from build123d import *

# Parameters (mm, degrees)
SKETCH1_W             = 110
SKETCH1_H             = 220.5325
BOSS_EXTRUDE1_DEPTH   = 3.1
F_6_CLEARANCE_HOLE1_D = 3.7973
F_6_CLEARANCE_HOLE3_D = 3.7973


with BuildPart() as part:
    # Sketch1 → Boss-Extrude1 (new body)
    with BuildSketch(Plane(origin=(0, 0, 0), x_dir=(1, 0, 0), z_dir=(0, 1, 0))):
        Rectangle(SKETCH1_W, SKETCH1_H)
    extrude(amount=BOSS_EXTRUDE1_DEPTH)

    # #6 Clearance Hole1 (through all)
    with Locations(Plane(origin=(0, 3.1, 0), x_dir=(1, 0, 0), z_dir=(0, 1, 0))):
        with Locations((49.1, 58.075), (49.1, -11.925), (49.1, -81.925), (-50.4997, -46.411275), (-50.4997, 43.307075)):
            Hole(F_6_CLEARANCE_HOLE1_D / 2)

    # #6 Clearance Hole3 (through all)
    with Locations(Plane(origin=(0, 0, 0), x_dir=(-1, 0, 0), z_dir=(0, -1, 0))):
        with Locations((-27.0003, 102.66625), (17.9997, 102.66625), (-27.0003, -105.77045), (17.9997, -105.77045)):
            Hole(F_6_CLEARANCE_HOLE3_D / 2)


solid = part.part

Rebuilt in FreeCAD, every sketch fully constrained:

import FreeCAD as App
import Part
import Sketcher

V = App.Vector

doc = App.newDocument("Part")
body = doc.addObject("PartDesign::Body", "Body")

sketch1 = body.newObject("Sketcher::SketchObject", "Sketch")
sketch1.AttachmentSupport = (doc.getObject("XZ_Plane"), [""])
sketch1.MapMode = "FlatFace"
sketch1.addGeometry([
    Part.LineSegment(V(-55, -110, 0), V(-55, 110, 0)),
    Part.LineSegment(V(-55, 110, 0), V(55, 110, 0)),
    Part.LineSegment(V(55, 110, 0), V(55, -110, 0)),
    Part.LineSegment(V(55, -110, 0), V(-55, -110, 0)),
], False)
sketch1.addConstraint([
    Sketcher.Constraint("Coincident", 0, 2, 1, 1),
    Sketcher.Constraint("Coincident", 1, 2, 2, 1),
    Sketcher.Constraint("Coincident", 2, 2, 3, 1),
    Sketcher.Constraint("Coincident", 3, 2, 0, 1),
    Sketcher.Constraint("Vertical", 0),
    Sketcher.Constraint("Horizontal", 1),
    Sketcher.Constraint("Vertical", 2),
    Sketcher.Constraint("Horizontal", 3),
    Sketcher.Constraint("Symmetric", 0, 2, 2, 2, -1, 1),
    Sketcher.Constraint("DistanceX", 1, 1, 1, 2, 110.0),
    Sketcher.Constraint("DistanceY", 0, 1, 0, 2, 220.5325),
])
pad1 = body.newObject("PartDesign::Pad", "Pad")
pad1.Profile = sketch1
pad1.Length = 3.1
pad1.Reversed = True

sketch2 = body.newObject("Sketcher::SketchObject", "Sketch001")
sketch2.AttachmentSupport = (doc.getObject("XZ_Plane"), [""])
sketch2.MapMode = "FlatFace"
sketch2.AttachmentOffset = App.Placement(V(0, 0, -3.1), App.Rotation())
sketch2.addGeometry([
    Part.Circle(V(49.1, -58.1, 0), V(0, 0, 1), 1.9),
    Part.Circle(V(49.1, 11.9, 0), V(0, 0, 1), 1.9),
    Part.Circle(V(49.1, 81.9, 0), V(0, 0, 1), 1.9),
    Part.Circle(V(-50.5, 46.4, 0), V(0, 0, 1), 1.9),
    Part.Circle(V(-50.5, -43.3, 0), V(0, 0, 1), 1.9),
], False)
sketch2.addConstraint([
    Sketcher.Constraint("Equal", 0, 1),
    Sketcher.Constraint("Equal", 1, 2),
    Sketcher.Constraint("Equal", 2, 3),
    Sketcher.Constraint("Equal", 3, 4),
    Sketcher.Constraint("Vertical", 0, 3, 1, 3),
    Sketcher.Constraint("Vertical", 1, 3, 2, 3),
    Sketcher.Constraint("Vertical", 3, 3, 4, 3),
    Sketcher.Constraint("DistanceY", 0, 3, 1, 3, 70.0),
    Sketcher.Constraint("DistanceY", 1, 3, 2, 3, 70.0),
    Sketcher.Constraint("Diameter", 0, 3.7973),
    Sketcher.Constraint("DistanceX", -1, 1, 0, 3, 49.1),
    Sketcher.Constraint("DistanceY", 0, 3, -1, 1, 58.075),
    Sketcher.Constraint("DistanceX", 3, 3, -1, 1, 50.4997),
    Sketcher.Constraint("DistanceY", 4, 3, 3, 3, 89.71835),
    Sketcher.Constraint("DistanceY", -1, 1, 3, 3, 46.411275),
])
doc.recompute()
hole = body.newObject("PartDesign::Hole", "Hole")
hole.Profile = sketch2
hole.ThreadType = "None"
hole.Diameter = 3.7973
hole.DepthType = "ThroughAll"
hole.Reversed = True

sketch3 = body.newObject("Sketcher::SketchObject", "Sketch002")
sketch3.AttachmentSupport = (doc.getObject("XZ_Plane"), [""])
sketch3.MapMode = "FlatFace"
sketch3.addGeometry([
    Part.Circle(V(27, -102.7, 0), V(0, 0, 1), 1.9),
    Part.Circle(V(-18, -102.7, 0), V(0, 0, 1), 1.9),
    Part.Circle(V(27, 105.8, 0), V(0, 0, 1), 1.9),
    Part.Circle(V(-18, 105.8, 0), V(0, 0, 1), 1.9),
], False)
sketch3.addConstraint([
    Sketcher.Constraint("Equal", 0, 1),
    Sketcher.Constraint("Equal", 1, 2),
    Sketcher.Constraint("Equal", 2, 3),
    Sketcher.Constraint("Horizontal", 0, 3, 1, 3),
    Sketcher.Constraint("Horizontal", 2, 3, 3, 3),
    Sketcher.Constraint("Vertical", 0, 3, 2, 3),
    Sketcher.Constraint("Vertical", 1, 3, 3, 3),
    Sketcher.Constraint("DistanceX", 1, 3, 0, 3, 45.0),
    Sketcher.Constraint("Diameter", 0, 3.7973),
    Sketcher.Constraint("DistanceX", -1, 1, 0, 3, 27.0003),
    Sketcher.Constraint("DistanceY", 0, 3, 2, 3, 208.4367),
    Sketcher.Constraint("DistanceY", 0, 3, -1, 1, 102.66625),
])
doc.recompute()
hole2 = body.newObject("PartDesign::Hole", "Hole001")
hole2.Profile = sketch3
hole2.ThreadType = "None"
hole2.Diameter = 3.7973
hole2.DepthType = "ThroughAll"

doc.recompute()
